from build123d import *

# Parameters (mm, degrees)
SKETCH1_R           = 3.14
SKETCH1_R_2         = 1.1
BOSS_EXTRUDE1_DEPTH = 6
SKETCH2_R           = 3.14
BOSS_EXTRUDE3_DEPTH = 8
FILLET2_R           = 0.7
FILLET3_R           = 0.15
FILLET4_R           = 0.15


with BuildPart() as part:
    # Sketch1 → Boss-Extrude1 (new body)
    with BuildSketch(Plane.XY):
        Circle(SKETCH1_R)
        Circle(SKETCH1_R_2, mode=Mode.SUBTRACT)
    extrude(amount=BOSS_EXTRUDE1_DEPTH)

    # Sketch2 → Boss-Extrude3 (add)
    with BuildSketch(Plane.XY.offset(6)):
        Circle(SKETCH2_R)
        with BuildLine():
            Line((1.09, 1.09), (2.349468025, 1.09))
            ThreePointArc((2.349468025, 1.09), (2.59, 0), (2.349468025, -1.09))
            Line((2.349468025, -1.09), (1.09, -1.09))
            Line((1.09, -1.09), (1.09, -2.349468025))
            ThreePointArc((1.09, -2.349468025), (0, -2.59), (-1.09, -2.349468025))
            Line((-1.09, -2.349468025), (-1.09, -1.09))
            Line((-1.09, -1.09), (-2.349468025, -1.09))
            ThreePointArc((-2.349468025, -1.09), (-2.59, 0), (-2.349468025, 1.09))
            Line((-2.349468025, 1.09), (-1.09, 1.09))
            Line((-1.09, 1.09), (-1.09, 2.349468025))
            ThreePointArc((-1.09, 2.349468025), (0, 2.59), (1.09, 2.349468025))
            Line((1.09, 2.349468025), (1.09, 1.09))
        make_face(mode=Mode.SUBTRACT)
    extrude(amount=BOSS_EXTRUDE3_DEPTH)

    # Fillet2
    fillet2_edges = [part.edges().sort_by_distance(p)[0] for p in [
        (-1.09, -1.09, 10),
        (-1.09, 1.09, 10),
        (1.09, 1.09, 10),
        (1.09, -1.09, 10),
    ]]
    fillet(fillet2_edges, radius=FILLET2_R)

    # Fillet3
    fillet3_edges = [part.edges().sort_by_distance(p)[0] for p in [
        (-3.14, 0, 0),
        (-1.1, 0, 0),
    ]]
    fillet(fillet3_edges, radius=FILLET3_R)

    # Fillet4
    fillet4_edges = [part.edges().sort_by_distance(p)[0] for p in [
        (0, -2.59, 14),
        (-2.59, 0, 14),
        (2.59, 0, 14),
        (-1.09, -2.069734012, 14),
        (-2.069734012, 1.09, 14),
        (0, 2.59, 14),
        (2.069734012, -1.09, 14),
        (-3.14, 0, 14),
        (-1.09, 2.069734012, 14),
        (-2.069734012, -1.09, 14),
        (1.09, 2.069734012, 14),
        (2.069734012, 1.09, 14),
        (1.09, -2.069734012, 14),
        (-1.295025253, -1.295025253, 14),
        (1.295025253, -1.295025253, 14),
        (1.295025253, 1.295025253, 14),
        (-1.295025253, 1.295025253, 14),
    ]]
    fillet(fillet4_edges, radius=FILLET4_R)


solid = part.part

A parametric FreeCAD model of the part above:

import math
import FreeCAD as App
import Part
import Sketcher


def edges_at(feature, points):
    """Names of the edges that pass closest to the given points."""
    edges = feature.Shape.Edges
    near = lambda p: min(range(len(edges)), key=lambda i: edges[i].distToShape(Part.Vertex(*p))[0])
    return sorted({f"Edge{near(p) + 1}" for p in points})

doc = App.newDocument("Part")
body = doc.addObject("PartDesign::Body", "Body")

sketch1 = body.newObject("Sketcher::SketchObject", "Sketch")
sketch1.AttachmentSupport = (doc.getObject("XY_Plane"), [""])
sketch1.MapMode = "FlatFace"
sketch1.addGeometry(Part.Circle(App.Vector(0, 0, 0), App.Vector(0, 0, 1), 3.1), False)
sketch1.addGeometry(Part.Circle(App.Vector(0, 0, 0), App.Vector(0, 0, 1), 1.1), False)
sketch1.addConstraint(Sketcher.Constraint("Coincident", 0, 3, -1, 1))
sketch1.addConstraint(Sketcher.Constraint("Coincident", 1, 3, -1, 1))
sketch1.addConstraint(Sketcher.Constraint("Diameter", 1, 2.2))
sketch1.addConstraint(Sketcher.Constraint("Diameter", 0, 6.28))
pad1 = body.newObject("PartDesign::Pad", "Pad")
pad1.Profile = sketch1
pad1.Length = 6

sketch2 = body.newObject("Sketcher::SketchObject", "Sketch001")
sketch2.AttachmentSupport = (doc.getObject("XY_Plane"), [""])
sketch2.MapMode = "FlatFace"
sketch2.AttachmentOffset = App.Placement(App.Vector(0, 0, 6), App.Rotation())
sketch2.addGeometry(Part.Circle(App.Vector(0, 0, 0), App.Vector(0, 0, 1), 3.1), False)
sketch2.addGeometry(Part.LineSegment(App.Vector(1.1, 2.3, 0), App.Vector(1.1, 1.1, 0)), False)
sketch2.addGeometry(Part.LineSegment(App.Vector(1.1, 1.1, 0), App.Vector(2.3, 1.1, 0)), False)
sketch2.addGeometry(Part.ArcOfCircle(Part.Circle(App.Vector(0, 0, 0), App.Vector(0, 0, 1), 2.6), math.radians(-25), math.radians(25)), False)
sketch2.addGeometry(Part.LineSegment(App.Vector(2.3, -1.1, 0), App.Vector(1.1, -1.1, 0)), False)
sketch2.addGeometry(Part.LineSegment(App.Vector(1.1, -1.1, 0), App.Vector(1.1, -2.3, 0)), False)
sketch2.addGeometry(Part.ArcOfCircle(Part.Circle(App.Vector(0, 0, 0), App.Vector(0, 0, 1), 2.6), math.radians(-115), math.radians(-65)), False)
sketch2.addGeometry(Part.LineSegment(App.Vector(-1.1, -2.3, 0), App.Vector(-1.1, -1.1, 0)), False)
sketch2.addGeometry(Part.LineSegment(App.Vector(-1.1, -1.1, 0), App.Vector(-2.3, -1.1, 0)), False)
sketch2.addGeometry(Part.ArcOfCircle(Part.Circle(App.Vector(0, 0, 0), App.Vector(0, 0, 1), 2.6), math.radians(155), math.radians(205)), False)
sketch2.addGeometry(Part.LineSegment(App.Vector(-2.3, 1.1, 0), App.Vector(-1.1, 1.1, 0)), False)
sketch2.addGeometry(Part.LineSegment(App.Vector(-1.1, 1.1, 0), App.Vector(-1.1, 2.3, 0)), False)
sketch2.addGeometry(Part.ArcOfCircle(Part.Circle(App.Vector(0, 0, 0), App.Vector(0, 0, 1), 2.6), math.radians(65), math.radians(115)), False)
sketch2.addConstraint(Sketcher.Constraint("Coincident", 1, 2, 2, 1))
sketch2.addConstraint(Sketcher.Constraint("Coincident", 2, 2, 3, 2))
sketch2.addConstraint(Sketcher.Constraint("Coincident", 3, 1, 4, 1))
sketch2.addConstraint(Sketcher.Constraint("Coincident", 4, 2, 5, 1))
sketch2.addConstraint(Sketcher.Constraint("Coincident", 5, 2, 6, 2))
sketch2.addConstraint(Sketcher.Constraint("Coincident", 6, 1, 7, 1))
sketch2.addConstraint(Sketcher.Constraint("Coincident", 7, 2, 8, 1))
sketch2.addConstraint(Sketcher.Constraint("Coincident", 8, 2, 9, 2))
sketch2.addConstraint(Sketcher.Constraint("Coincident", 9, 1, 10, 1))
sketch2.addConstraint(Sketcher.Constraint("Coincident", 10, 2, 11, 1))
sketch2.addConstraint(Sketcher.Constraint("Coincident", 11, 2, 12, 2))
sketch2.addConstraint(Sketcher.Constraint("Coincident", 12, 1, 1, 1))
sketch2.addConstraint(Sketcher.Constraint("Vertical", 1))
sketch2.addConstraint(Sketcher.Constraint("Horizontal", 2))
sketch2.addConstraint(Sketcher.Constraint("Horizontal", 4))
sketch2.addConstraint(Sketcher.Constraint("Vertical", 5))
sketch2.addConstraint(Sketcher.Constraint("Vertical", 7))
sketch2.addConstraint(Sketcher.Constraint("Horizontal", 8))
sketch2.addConstraint(Sketcher.Constraint("Horizontal", 10))
sketch2.addConstraint(Sketcher.Constraint("Vertical", 11))
sketch2.addConstraint(Sketcher.Constraint("Coincident", 0, 3, -1, 1))
sketch2.addConstraint(Sketcher.Constraint("Coincident", 3, 3, -1, 1))
sketch2.addConstraint(Sketcher.Constraint("Coincident", 6, 3, -1, 1))
sketch2.addConstraint(Sketcher.Constraint("Coincident", 9, 3, -1, 1))
sketch2.addConstraint(Sketcher.Constraint("Coincident", 12, 3, -1, 1))
sketch2.addConstraint(Sketcher.Constraint("Equal", 3, 6))
sketch2.addConstraint(Sketcher.Constraint("Equal", 6, 9))
sketch2.addConstraint(Sketcher.Constraint("Equal", 9, 12))
sketch2.addConstraint(Sketcher.Constraint("Symmetric", 1, 2, 7, 2, -1, 1))
sketch2.addConstraint(Sketcher.Constraint("Symmetric", 4, 2, 10, 2, -1, 1))
sketch2.addConstraint(Sketcher.Constraint("Symmetric", 4, 2, 7, 2, -2))
sketch2.addConstraint(Sketcher.Constraint("Equal", 10, 1))
sketch2.addConstraint(Sketcher.Constraint("Diameter", 0, 6.28))
sketch2.addConstraint(Sketcher.Constraint("Radius", 3, 2.59))
sketch2.addConstraint(Sketcher.Constraint("DistanceX", -1, 1, 1, 2, 1.09))
pad2 = body.newObject("PartDesign::Pad", "Pad001")
pad2.Profile = sketch2
pad2.Length = 8
doc.recompute()

fillet = body.newObject("PartDesign::Fillet", "Fillet")
fillet.Base = (pad2, edges_at(pad2, [
    (-1.09, -1.09, 10),
    (-1.09, 1.09, 10),
    (1.09, 1.09, 10),
    (1.09, -1.09, 10),
]))
fillet.Radius = 0.7
doc.recompute()

fillet2 = body.newObject("PartDesign::Fillet", "Fillet001")
fillet2.Base = (fillet, edges_at(fillet, [(-3.14, 0, 0), (-1.1, 0, 0)]))
fillet2.Radius = 0.15
doc.recompute()

fillet3 = body.newObject("PartDesign::Fillet", "Fillet002")
fillet3.Base = (fillet2, edges_at(fillet2, [
    (0, -2.59, 14),
    (-2.59, 0, 14),
    (2.59, 0, 14),
    (-1.09, -2.07, 14),
    (-2.07, 1.09, 14),
    (0, 2.59, 14),
    (2.07, -1.09, 14),
    (-3.14, 0, 14),
    (-1.09, 2.07, 14),
    (-2.07, -1.09, 14),
    (1.09, 2.07, 14),
    (2.07, 1.09, 14),
    (1.09, -2.07, 14),
    (-1.295, -1.295, 14),
    (1.295, -1.295, 14),
    (1.295, 1.295, 14),
    (-1.295, 1.295, 14),
]))
fillet3.Radius = 0.15

doc.recompute()
